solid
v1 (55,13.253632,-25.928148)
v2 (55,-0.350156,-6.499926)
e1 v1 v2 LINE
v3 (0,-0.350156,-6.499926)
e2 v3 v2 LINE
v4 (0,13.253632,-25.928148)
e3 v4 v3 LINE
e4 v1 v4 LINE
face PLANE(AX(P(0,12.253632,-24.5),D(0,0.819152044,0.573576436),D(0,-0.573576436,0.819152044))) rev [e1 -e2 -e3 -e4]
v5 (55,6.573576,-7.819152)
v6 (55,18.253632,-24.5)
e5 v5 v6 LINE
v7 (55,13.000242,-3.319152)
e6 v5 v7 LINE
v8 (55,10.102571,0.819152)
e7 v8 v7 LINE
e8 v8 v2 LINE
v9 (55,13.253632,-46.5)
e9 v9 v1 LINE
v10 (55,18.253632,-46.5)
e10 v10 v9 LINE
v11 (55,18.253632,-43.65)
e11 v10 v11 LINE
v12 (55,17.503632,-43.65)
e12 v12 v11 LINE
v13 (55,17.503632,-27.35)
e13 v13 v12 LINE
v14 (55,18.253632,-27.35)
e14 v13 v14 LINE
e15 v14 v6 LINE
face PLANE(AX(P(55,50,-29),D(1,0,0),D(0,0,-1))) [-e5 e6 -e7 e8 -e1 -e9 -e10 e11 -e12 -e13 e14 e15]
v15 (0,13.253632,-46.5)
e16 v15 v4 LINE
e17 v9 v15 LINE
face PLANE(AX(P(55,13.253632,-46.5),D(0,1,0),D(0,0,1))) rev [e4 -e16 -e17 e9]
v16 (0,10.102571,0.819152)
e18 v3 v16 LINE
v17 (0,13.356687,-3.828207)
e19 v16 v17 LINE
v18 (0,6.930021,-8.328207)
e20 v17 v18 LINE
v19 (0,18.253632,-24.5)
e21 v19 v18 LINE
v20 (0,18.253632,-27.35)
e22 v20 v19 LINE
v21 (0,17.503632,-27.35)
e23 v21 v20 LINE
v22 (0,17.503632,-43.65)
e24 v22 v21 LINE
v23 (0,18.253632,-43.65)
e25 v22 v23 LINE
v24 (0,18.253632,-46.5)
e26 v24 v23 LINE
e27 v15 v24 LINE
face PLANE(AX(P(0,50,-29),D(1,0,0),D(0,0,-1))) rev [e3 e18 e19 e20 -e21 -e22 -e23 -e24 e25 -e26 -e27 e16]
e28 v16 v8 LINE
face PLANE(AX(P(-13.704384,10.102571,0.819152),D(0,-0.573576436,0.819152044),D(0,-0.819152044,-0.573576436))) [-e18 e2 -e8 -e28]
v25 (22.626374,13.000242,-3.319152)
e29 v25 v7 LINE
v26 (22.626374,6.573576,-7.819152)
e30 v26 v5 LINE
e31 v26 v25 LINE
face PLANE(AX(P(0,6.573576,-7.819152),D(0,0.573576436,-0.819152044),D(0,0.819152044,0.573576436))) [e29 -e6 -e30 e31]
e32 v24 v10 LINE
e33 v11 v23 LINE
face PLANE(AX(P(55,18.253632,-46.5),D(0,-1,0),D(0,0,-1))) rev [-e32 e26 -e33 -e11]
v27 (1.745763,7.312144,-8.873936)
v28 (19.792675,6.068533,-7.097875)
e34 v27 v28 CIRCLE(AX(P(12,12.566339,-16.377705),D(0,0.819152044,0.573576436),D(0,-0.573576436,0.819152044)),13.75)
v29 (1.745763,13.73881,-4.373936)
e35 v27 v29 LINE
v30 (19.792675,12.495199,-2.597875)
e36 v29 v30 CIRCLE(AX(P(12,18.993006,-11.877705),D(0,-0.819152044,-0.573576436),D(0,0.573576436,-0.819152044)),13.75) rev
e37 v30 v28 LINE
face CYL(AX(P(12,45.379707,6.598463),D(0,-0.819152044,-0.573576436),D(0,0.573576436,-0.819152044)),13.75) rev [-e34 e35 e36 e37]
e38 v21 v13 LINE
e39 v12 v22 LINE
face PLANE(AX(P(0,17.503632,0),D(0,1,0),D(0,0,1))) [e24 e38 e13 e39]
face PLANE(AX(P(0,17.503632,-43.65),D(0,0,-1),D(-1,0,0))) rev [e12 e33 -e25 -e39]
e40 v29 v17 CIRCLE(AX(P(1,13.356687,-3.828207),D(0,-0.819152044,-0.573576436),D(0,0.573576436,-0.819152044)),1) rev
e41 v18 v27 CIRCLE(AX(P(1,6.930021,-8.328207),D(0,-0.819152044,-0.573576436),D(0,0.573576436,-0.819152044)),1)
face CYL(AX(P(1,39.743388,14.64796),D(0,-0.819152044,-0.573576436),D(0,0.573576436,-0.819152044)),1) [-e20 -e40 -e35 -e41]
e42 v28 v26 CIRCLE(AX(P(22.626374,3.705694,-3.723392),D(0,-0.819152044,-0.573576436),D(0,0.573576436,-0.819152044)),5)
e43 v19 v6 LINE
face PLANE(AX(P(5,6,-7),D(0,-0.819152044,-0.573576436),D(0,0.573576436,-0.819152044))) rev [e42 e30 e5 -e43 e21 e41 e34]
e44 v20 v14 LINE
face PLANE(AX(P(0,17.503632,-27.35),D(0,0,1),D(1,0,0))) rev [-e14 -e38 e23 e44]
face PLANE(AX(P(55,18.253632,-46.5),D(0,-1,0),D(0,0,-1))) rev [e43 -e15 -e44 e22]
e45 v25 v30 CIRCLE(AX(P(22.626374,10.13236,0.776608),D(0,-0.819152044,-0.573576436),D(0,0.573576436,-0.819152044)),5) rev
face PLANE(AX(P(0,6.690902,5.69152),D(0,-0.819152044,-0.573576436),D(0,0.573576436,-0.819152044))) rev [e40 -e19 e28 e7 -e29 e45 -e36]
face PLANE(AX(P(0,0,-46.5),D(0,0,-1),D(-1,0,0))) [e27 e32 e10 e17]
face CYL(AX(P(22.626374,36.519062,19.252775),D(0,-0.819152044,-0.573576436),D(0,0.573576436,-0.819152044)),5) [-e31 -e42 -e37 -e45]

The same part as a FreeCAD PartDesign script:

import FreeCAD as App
import Part
import Sketcher
from FreeCAD import Vector
Q = App.Units.Quantity


def edges_at(feature, points):
    """Names of the edges that pass closest to the given points."""
    edges = feature.Shape.Edges
    near = lambda p: min(range(len(edges)), key=lambda i: edges[i].distToShape(Part.Vertex(*p))[0])
    return sorted({f"Edge{near(p) + 1}" for p in points})


def add_polygon(sketch, points):
    """Adds a closed chain of lines whose ends are joined by coincident constraints."""
    first, n = sketch.GeometryCount, len(points)
    for a, b in zip(points, points[1:] + points[:1]):
        sketch.addGeometry(Part.LineSegment(App.Vector(*a, 0), App.Vector(*b, 0)), False)
    for i in range(n):
        sketch.addConstraint(Sketcher.Constraint("Coincident", first + i, 2, first + (i + 1) % n, 1))

doc = App.newDocument("Part")
body = doc.addObject("PartDesign::Body", "Body")

sketch1 = doc.addObject("Sketcher::SketchObject", "Sketch")
body.addObject(sketch1)
sketch1.AttachmentSupport = (doc.XZ_Plane, [""])
sketch1.MapMode = "FlatFace"
add_polygon(sketch1, [(0, -29), (0, 0), (55, 0), (55, -29)])
sketch1.addConstraint([
    Sketcher.Constraint("Vertical", 0),
    Sketcher.Constraint("Horizontal", 1),
    Sketcher.Constraint("Vertical", 2),
    Sketcher.Constraint("Horizontal", 3),
    Sketcher.Constraint("Coincident", 0, 2, -1, 1),
    Sketcher.Constraint("DistanceX", 1, 1, 1, 2, Q("55 mm")),
    Sketcher.Constraint("DistanceY", 0, 1, 0, 2, Q("29 mm")),
])
pad1 = doc.addObject("PartDesign::Pad", "Pad")
body.addObject(pad1)
pad1.Profile = sketch1
pad1.Length = 50
pad1.Reversed = True

sketch2 = doc.addObject("Sketcher::SketchObject", "Sketch001")
body.addObject(sketch2)
sketch2.AttachmentSupport = (doc.YZ_Plane, [""])
sketch2.MapMode = "FlatFace"
sketch2.AttachmentOffset = App.Placement(Vector(0, 0, 55), App.Rotation())
add_polygon(sketch2, [(76, -19), (47, 22), (6, -7), (35, -48)])
sketch2.addConstraint([
    Sketcher.Constraint("Perpendicular", 0, 1),
    Sketcher.Constraint("Perpendicular", 1, 2),
    Sketcher.Constraint("Perpendicular", 2, 3),
    Sketcher.Constraint("Equal", 0, 1),
    Sketcher.Constraint("Angle", 0, Q("125 deg")),
    Sketcher.Constraint("Distance", 0, Q("50 mm")),
    Sketcher.Constraint("DistanceX", -1, 1, 1, 2, Q("6 mm")),
    Sketcher.Constraint("DistanceY", 1, 2, -1, 1, Q("7 mm")),
])
pocket1 = doc.addObject("PartDesign::Pocket", "Pocket")
body.addObject(pocket1)
pocket1.Profile = sketch2
pocket1.Length = 50

sketch3 = doc.addObject("Sketcher::SketchObject", "Sketch002")
body.addObject(sketch3)
sketch3.AttachmentSupport = (doc.YZ_Plane, [""])
sketch3.MapMode = "FlatFace"
sketch3.AttachmentOffset = App.Placement(Vector(0, 0, 55), App.Rotation())
add_polygon(sketch3, [(21, 3), (15, 11), (7, 6), (12, -2)])
sketch3.addConstraint([
    Sketcher.Constraint("Perpendicular", 0, 1),
    Sketcher.Constraint("Perpendicular", 1, 2),
    Sketcher.Constraint("Perpendicular", 2, 3),
    Sketcher.Constraint("Equal", 0, 1),
    Sketcher.Constraint("Angle", 0, Q("125 deg")),
    Sketcher.Constraint("Distance", 0, Q("10 mm")),
    Sketcher.Constraint("DistanceY", 2, 2, -1, 1, Q("2.5 mm")),
    Sketcher.Constraint("DistanceX", -1, 1, 1, 2, Q("6.690902 mm")),
])
pocket2 = doc.addObject("PartDesign::Pocket", "Pocket001")
body.addObject(pocket2)
pocket2.Profile = sketch3
pocket2.Type = "ThroughAll"

sketch4 = doc.addObject("Sketcher::SketchObject", "Sketch003")
body.addObject(sketch4)
sketch4.AttachmentSupport = (doc.YZ_Plane, [""])
sketch4.MapMode = "FlatFace"
sketch4.AttachmentOffset = App.Placement(Vector(0, 0, 55), App.Rotation())
add_polygon(sketch4, [(12.4, -2.5), (6, -7), (6.6, -7.8), (13, -3.3)])
sketch4.addConstraint([
    Sketcher.Constraint("Perpendicular", 0, 1),
    Sketcher.Constraint("Perpendicular", 1, 2),
    Sketcher.Constraint("Perpendicular", 2, 3),
    Sketcher.Constraint("Angle", 0, Q("-145 deg")),
    Sketcher.Constraint("Distance", 1, Q("1 mm")),
    Sketcher.Constraint("DistanceX", -1, 1, 0, 2, Q("6 mm")),
    Sketcher.Constraint("DistanceY", 0, 2, -1, 1, Q("7 mm")),
    Sketcher.Constraint("DistanceY", 3, 2, -1, 1, Q("2.5 mm")),
])
pad2 = doc.addObject("PartDesign::Pad", "Pad001")
body.addObject(pad2)
pad2.Profile = sketch4
pad2.Type = "UpToFirst"
pad2.Reversed = True

sketch5 = doc.addObject("Sketcher::SketchObject", "Sketch004")
body.addObject(sketch5)
sketch5.Placement = App.Placement(Vector(0, 0.737136, 0.516148), App.Rotation(Vector(1, 0, 0), Vector(0, 0.573576436, -0.819152044), Vector(0, 0.819152044, 0.573576436), "ZXY"))
sketch5.addGeometry(Part.Circle(Vector(12, 21, 0), Vector(0, 0, 1), 14), False)
sketch5.addConstraint([
    Sketcher.Constraint("Diameter", 0, Q("27.5 mm")),
    Sketcher.Constraint("DistanceX", -1, 1, 0, 3, Q("12 mm")),
    Sketcher.Constraint("DistanceY", -1, 1, 0, 3, Q("20.623586 mm")),
])
pocket3 = doc.addObject("PartDesign::Pocket", "Pocket002")
body.addObject(pocket3)
pocket3.Profile = sketch5
pocket3.Type = "ThroughAll"
pocket3.Reversed = True

sketch6 = doc.addObject("Sketcher::SketchObject", "Sketch005")
body.addObject(sketch6)
sketch6.AttachmentSupport = (doc.YZ_Plane, [""])
sketch6.MapMode = "FlatFace"
sketch6.AttachmentOffset = App.Placement(Vector(0, 0, 55), App.Rotation())
add_polygon(sketch6, [(11, 0), (15, -6), (9, -11), (61, -85), (61, 0)])
sketch6.addConstraint([
    Sketcher.Constraint("Vertical", 3),
    Sketcher.Constraint("Horizontal", 4),
    Sketcher.Constraint("PointOnObject", 3, 2, -1),
    Sketcher.Constraint("Perpendicular", 0, 1),
    Sketcher.Constraint("Perpendicular", 1, 2),
    Sketcher.Constraint("DistanceX", 4, 2, 4, 1, Q("50 mm")),
    Sketcher.Constraint("Angle", 0, Q("-55 deg")),
    Sketcher.Constraint("DistanceY", 1, 2, 0, 2, Q("4.5 mm")),
    Sketcher.Constraint("DistanceX", -1, 1, 1, 2, Q("8.716001 mm")),
    Sketcher.Constraint("Distance", 0, Q("7.787139 mm")),
])
pocket4 = doc.addObject("PartDesign::Pocket", "Pocket003")
body.addObject(pocket4)
pocket4.Profile = sketch6
pocket4.Type = "ThroughAll"

sketch7 = doc.addObject("Sketcher::SketchObject", "Sketch006")
body.addObject(sketch7)
sketch7.AttachmentSupport = (doc.XZ_Plane, [""])
sketch7.MapMode = "FlatFace"
sketch7.addGeometry(Part.Circle(Vector(26, -30, 0), Vector(0, 0, 1), 6), False)
sketch7.addConstraint([
    Sketcher.Constraint("Diameter", 0, Q("12 mm")),
    Sketcher.Constraint("DistanceY", 0, 3, -1, 1, Q("30.5 mm")),
    Sketcher.Constraint("DistanceX", -1, 1, 0, 3, Q("25.75 mm")),
])
pocket5 = doc.addObject("PartDesign::Pocket", "Pocket004")
body.addObject(pocket5)
pocket5.Profile = sketch7
pocket5.Type = "ThroughAll"

sketch8 = doc.addObject("Sketcher::SketchObject", "Sketch007")
body.addObject(sketch8)
sketch8.AttachmentSupport = (doc.YZ_Plane, [""])
sketch8.MapMode = "FlatFace"
sketch8.AttachmentOffset = App.Placement(Vector(0, 0, 55), App.Rotation())
add_polygon(sketch8, [(18.3, -24.5), (18.3, -29), (21.4, -29)])
sketch8.addConstraint([
    Sketcher.Constraint("Vertical", 0),
    Sketcher.Constraint("Horizontal", 1),
    Sketcher.Constraint("Angle", 2, Q("125 deg")),
    Sketcher.Constraint("DistanceY", 0, 2, 0, 1, Q("4.5 mm")),
    Sketcher.Constraint("DistanceY", 0, 2, -1, 1, Q("29 mm")),
    Sketcher.Constraint("DistanceX", -1, 1, 0, 2, Q("18.253632 mm")),
])
pocket6 = doc.addObject("PartDesign::Pocket", "Pocket005")
body.addObject(pocket6)
pocket6.Profile = sketch8
pocket6.Type = "ThroughAll"

sketch9 = doc.addObject("Sketcher::SketchObject", "Sketch008")
body.addObject(sketch9)
sketch9.AttachmentSupport = (doc.XZ_Plane, [""])
sketch9.MapMode = "FlatFace"
add_polygon(sketch9, [(0, -29), (0, -24.5), (55, -24.5), (55, -29)])
sketch9.addConstraint([
    Sketcher.Constraint("Vertical", 0),
    Sketcher.Constraint("Horizontal", 1),
    Sketcher.Constraint("Vertical", 2),
    Sketcher.Constraint("Horizontal", 3),
    Sketcher.Constraint("PointOnObject", 0, 2, -2),
    Sketcher.Constraint("DistanceX", 1, 1, 1, 2, Q("55 mm")),
    Sketcher.Constraint("DistanceY", 0, 1, 0, 2, Q("4.5 mm")),
    Sketcher.Constraint("DistanceY", 2, 2, -1, 1, Q("29 mm")),
])
pocket7 = doc.addObject("PartDesign::Pocket", "Pocket006")
body.addObject(pocket7)
pocket7.Profile = sketch9
pocket7.Type = "ThroughAll"
doc.recompute()

fillet = doc.addObject("PartDesign::Fillet", "Fillet")
body.addObject(fillet)
fillet.Base = (pocket7, edges_at(pocket7, [(0, 11.929, -8.629)]))
fillet.Radius = 1
doc.recompute()

fillet2 = doc.addObject("PartDesign::Fillet", "Fillet001")
body.addObject(fillet2)
fillet2.Base = (fillet, edges_at(fillet, [(20.939, 9.787, -5.569)]))
fillet2.Radius = 5

sketch10 = doc.addObject("Sketcher::SketchObject", "Sketch009")
body.addObject(sketch10)
sketch10.AttachmentSupport = (doc.YZ_Plane, [""])
sketch10.MapMode = "FlatFace"
sketch10.AttachmentOffset = App.Placement(Vector(0, 0, 55), App.Rotation())
add_polygon(sketch10, [(12, -24), (0, -7), (11, 0), (0, 0), (0, -24)])
sketch10.addConstraint([
    Sketcher.Constraint("Horizontal", 2),
    Sketcher.Constraint("Vertical", 3),
    Sketcher.Constraint("Horizontal", 4),
    Sketcher.Constraint("Coincident", 2, 2, -1, 1),
    Sketcher.Constraint("Perpendicular", 0, 1),
    Sketcher.Constraint("Angle", 0, Q("125 deg")),
    Sketcher.Constraint("DistanceY", 3, 2, 3, 1, Q("24.5 mm")),
    Sketcher.Constraint("DistanceX", 4, 1, 4, 2, Q("12.253632 mm")),
    Sketcher.Constraint("DistanceX", 2, 2, 2, 1, Q("10.676147 mm")),
])
pocket8 = doc.addObject("PartDesign::Pocket", "Pocket007")
body.addObject(pocket8)
pocket8.Profile = sketch10
pocket8.Type = "ThroughAll"

sketch11 = doc.addObject("Sketcher::SketchObject", "Sketch010")
body.addObject(sketch11)
sketch11.AttachmentSupport = (doc.XY_Plane, [""])
sketch11.MapMode = "FlatFace"
sketch11.AttachmentOffset = App.Placement(Vector(0, 0, -24.5), App.Rotation())
add_polygon(sketch11, [(55, 18), (55, 13), (0, 13), (0, 18)])
sketch11.addConstraint([
    Sketcher.Constraint("Vertical", 0),
    Sketcher.Constraint("Horizontal", 1),
    Sketcher.Constraint("Vertical", 2),
    Sketcher.Constraint("Horizontal", 3),
    Sketcher.Constraint("PointOnObject", 1, 2, -2),
    Sketcher.Constraint("DistanceX", 1, 2, 1, 1, Q("55 mm")),
    Sketcher.Constraint("DistanceY", 0, 2, 0, 1, Q("5 mm")),
    Sketcher.Constraint("DistanceY", -1, 1, 0, 2, Q("13.253632 mm")),
])
pad3 = doc.addObject("PartDesign::Pad", "Pad002")
body.addObject(pad3)
pad3.Profile = sketch11
pad3.Length = 22
pad3.Reversed = True

sketch12 = doc.addObject("Sketcher::SketchObject", "Sketch011")
body.addObject(sketch12)
sketch12.AttachmentSupport = (doc.YZ_Plane, [""])
sketch12.MapMode = "FlatFace"
sketch12.AttachmentOffset = App.Placement(Vector(0, 0, 55), App.Rotation())
add_polygon(sketch12, [(6.2, -15.9), (18.3, -33.1), (18.3, -24.5), (10.3, -13.1)])
sketch12.addConstraint([
    Sketcher.Constraint("Vertical", 1),
    Sketcher.Constraint("Parallel", 0, 2),
    Sketcher.Constraint("Perpendicular", 2, 3),
    Sketcher.Constraint("Angle", 0, Q("-55 deg")),
    Sketcher.Constraint("DistanceY", 1, 2, -1, 1, Q("24.5 mm")),
    Sketcher.Constraint("DistanceY", 1, 1, 1, 2, Q("8.568888 mm")),
    Sketcher.Constraint("DistanceX", -1, 1, 0, 2, Q("18.253632 mm")),
    Sketcher.Constraint("DistanceY", 2, 2, -1, 1, Q("13.090461 mm")),
])
pad4 = doc.addObject("PartDesign::Pad", "Pad003")
body.addObject(pad4)
pad4.Profile = sketch12
pad4.Length = 55
pad4.Reversed = True

sketch13 = doc.addObject("Sketcher::SketchObject", "Sketch012")
body.addObject(sketch13)
sketch13.AttachmentSupport = (doc.XZ_Plane, [""])
sketch13.MapMode = "FlatFace"
sketch13.AttachmentOffset = App.Placement(Vector(0, 0, -18.253632), App.Rotation())
add_polygon(sketch13, [(0, -44), (0, -27), (55, -27), (55, -44)])
sketch13.addConstraint([
    Sketcher.Constraint("Vertical", 0),
    Sketcher.Constraint("Horizontal", 1),
    Sketcher.Constraint("Vertical", 2),
    Sketcher.Constraint("Horizontal", 3),
    Sketcher.Constraint("PointOnObject", 0, 2, -2),
    Sketcher.Constraint("DistanceX", 1, 1, 1, 2, Q("55 mm")),
    Sketcher.Constraint("DistanceY", 0, 1, 0, 2, Q("16.3 mm")),
    Sketcher.Constraint("DistanceY", 0, 2, -1, 1, Q("27.35 mm")),
])
pocket9 = doc.addObject("PartDesign::Pocket", "Pocket008")
body.addObject(pocket9)
pocket9.Profile = sketch13
pocket9.Length = 0.75
pocket9.Reversed = True

sketch14 = doc.addObject("Sketcher::SketchObject", "Sketch013")
body.addObject(sketch14)
sketch14.AttachmentSupport = (doc.YZ_Plane, [""])
sketch14.MapMode = "FlatFace"
sketch14.AttachmentOffset = App.Placement(Vector(0, 0, 55), App.Rotation())
add_polygon(sketch14, [(10.7, 0), (10.1, 0.8), (-0.4, -6.5), (0.2, -7.3)])
sketch14.addConstraint([
    Sketcher.Constraint("PointOnObject", 3, 2, -1),
    Sketcher.Constraint("Perpendicular", 0, 1),
    Sketcher.Constraint("Perpendicular", 1, 2),
    Sketcher.Constraint("Perpendicular", 2, 3),
    Sketcher.Constraint("Angle", 0, Q("125 deg")),
    Sketcher.Constraint("Distance", 0, Q("1 mm")),
    Sketcher.Constraint("DistanceX", -1, 1, 0, 2, Q("10.102571 mm")),
    Sketcher.Constraint("DistanceX", -1, 1, 2, 2, Q("0.223421 mm")),
])
pad5 = doc.addObject("PartDesign::Pad", "Pad004")
body.addObject(pad5)
pad5.Profile = sketch14
pad5.Length = 55
pad5.Reversed = True

doc.recompute()
